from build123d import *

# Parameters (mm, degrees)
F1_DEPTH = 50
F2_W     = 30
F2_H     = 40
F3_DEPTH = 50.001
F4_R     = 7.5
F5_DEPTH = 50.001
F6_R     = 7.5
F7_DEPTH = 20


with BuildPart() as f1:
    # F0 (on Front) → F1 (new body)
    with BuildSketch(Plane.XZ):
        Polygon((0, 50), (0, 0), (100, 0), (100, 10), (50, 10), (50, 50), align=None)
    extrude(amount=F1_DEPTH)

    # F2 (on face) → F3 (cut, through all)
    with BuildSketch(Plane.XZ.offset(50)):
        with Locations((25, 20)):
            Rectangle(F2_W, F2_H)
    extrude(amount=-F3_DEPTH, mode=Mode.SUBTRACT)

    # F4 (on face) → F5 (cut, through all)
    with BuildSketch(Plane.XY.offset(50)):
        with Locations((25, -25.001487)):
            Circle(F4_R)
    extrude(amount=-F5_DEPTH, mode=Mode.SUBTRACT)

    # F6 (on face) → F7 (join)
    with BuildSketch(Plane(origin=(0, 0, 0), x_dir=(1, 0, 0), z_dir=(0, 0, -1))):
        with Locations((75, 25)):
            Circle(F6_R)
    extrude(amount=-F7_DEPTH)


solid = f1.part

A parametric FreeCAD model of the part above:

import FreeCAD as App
import Part
import Sketcher
Q = App.Units.Quantity


def add_polygon(sketch, points):
    """Adds a closed chain of lines whose ends are joined by coincident constraints."""
    first, n = sketch.GeometryCount, len(points)
    for a, b in zip(points, points[1:] + points[:1]):
        sketch.addGeometry(Part.LineSegment(App.Vector(*a, 0), App.Vector(*b, 0)), False)
    for i in range(n):
        sketch.addConstraint(Sketcher.Constraint("Coincident", first + i, 2, first + (i + 1) % n, 1))

doc = App.newDocument("Part")
body = doc.addObject("PartDesign::Body", "Body")

# Sketch on XZ plane
sketch1 = body.newObject("Sketcher::SketchObject", "Sketch")
sketch1.AttachmentSupport = (doc.getObject("XZ_Plane"), [""])
sketch1.MapMode = "FlatFace"
add_polygon(sketch1, [(0, 50), (0, 0), (100, 0), (100, 10), (50, 10), (50, 50)])  # lines 0-5
sketch1.addConstraint(Sketcher.Constraint("Vertical", 0))
sketch1.addConstraint(Sketcher.Constraint("Horizontal", 1))
sketch1.addConstraint(Sketcher.Constraint("Vertical", 2))
sketch1.addConstraint(Sketcher.Constraint("Horizontal", 3))
sketch1.addConstraint(Sketcher.Constraint("Vertical", 4))
sketch1.addConstraint(Sketcher.Constraint("Horizontal", 5))
sketch1.addConstraint(Sketcher.Constraint("Coincident", 0, 2, -1, 1))
sketch1.addConstraint(Sketcher.Constraint("Equal", 3, 5))
sketch1.addConstraint(Sketcher.Constraint("Equal", 5, 0))
sketch1.addConstraint(Sketcher.Constraint("DistanceX", 1, 1, 1, 2, Q("100 mm")))
sketch1.addConstraint(Sketcher.Constraint("DistanceY", 2, 1, 2, 2, Q("10 mm")))
pad1 = body.newObject("PartDesign::Pad", "Pad")
pad1.Profile = sketch1
pad1.Length = 50

# Sketch on XZ plane
sketch2 = body.newObject("Sketcher::SketchObject", "Sketch001")
sketch2.AttachmentSupport = (doc.getObject("XZ_Plane"), [""])
sketch2.MapMode = "FlatFace"
sketch2.AttachmentOffset = App.Placement(App.Vector(0, 0, 50), App.Rotation())
add_polygon(sketch2, [(10, 40), (10, 0), (40, 0), (40, 40)])  # lines 0-3
sketch2.addConstraint(Sketcher.Constraint("Vertical", 0))
sketch2.addConstraint(Sketcher.Constraint("Horizontal", 1))
sketch2.addConstraint(Sketcher.Constraint("Vertical", 2))
sketch2.addConstraint(Sketcher.Constraint("Horizontal", 3))
sketch2.addConstraint(Sketcher.Constraint("PointOnObject", 0, 2, -1))
sketch2.addConstraint(Sketcher.Constraint("DistanceX", 1, 1, 1, 2, Q("30 mm")))
sketch2.addConstraint(Sketcher.Constraint("DistanceY", 0, 2, 0, 1, Q("40 mm")))
sketch2.addConstraint(Sketcher.Constraint("DistanceX", -1, 1, 0, 2, Q("10 mm")))
pocket1 = body.newObject("PartDesign::Pocket", "Pocket")
pocket1.Profile = sketch2
pocket1.Type = "ThroughAll"

# Sketch on XY plane
sketch3 = body.newObject("Sketcher::SketchObject", "Sketch002")
sketch3.AttachmentSupport = (doc.getObject("XY_Plane"), [""])
sketch3.MapMode = "FlatFace"
sketch3.AttachmentOffset = App.Placement(App.Vector(0, 0, 50), App.Rotation())
sketch3.addGeometry(Part.Circle(App.Vector(25, -25, 0), App.Vector(0, 0, 1), 8), False)
sketch3.addConstraint(Sketcher.Constraint("Diameter", 0, Q("15 mm")))
sketch3.addConstraint(Sketcher.Constraint("DistanceX", -1, 1, 0, 3, Q("25 mm")))
sketch3.addConstraint(Sketcher.Constraint("DistanceY", 0, 3, -1, 1, Q("25.001487 mm")))
pocket2 = body.newObject("PartDesign::Pocket", "Pocket001")
pocket2.Profile = sketch3
pocket2.Type = "ThroughAll"

# Sketch on XY plane
sketch4 = body.newObject("Sketcher::SketchObject", "Sketch003")
sketch4.AttachmentSupport = (doc.getObject("XY_Plane"), [""])
sketch4.MapMode = "FlatFace"
sketch4.addGeometry(Part.Circle(App.Vector(75, -25, 0), App.Vector(0, 0, 1), 8), False)
sketch4.addConstraint(Sketcher.Constraint("Diameter", 0, Q("15 mm")))
sketch4.addConstraint(Sketcher.Constraint("DistanceX", -1, 1, 0, 3, Q("75 mm")))
sketch4.addConstraint(Sketcher.Constraint("DistanceY", 0, 3, -1, 1, Q("25 mm")))
pad2 = body.newObject("PartDesign::Pad", "Pad001")
pad2.Profile = sketch4
pad2.Length = 20

doc.recompute()
